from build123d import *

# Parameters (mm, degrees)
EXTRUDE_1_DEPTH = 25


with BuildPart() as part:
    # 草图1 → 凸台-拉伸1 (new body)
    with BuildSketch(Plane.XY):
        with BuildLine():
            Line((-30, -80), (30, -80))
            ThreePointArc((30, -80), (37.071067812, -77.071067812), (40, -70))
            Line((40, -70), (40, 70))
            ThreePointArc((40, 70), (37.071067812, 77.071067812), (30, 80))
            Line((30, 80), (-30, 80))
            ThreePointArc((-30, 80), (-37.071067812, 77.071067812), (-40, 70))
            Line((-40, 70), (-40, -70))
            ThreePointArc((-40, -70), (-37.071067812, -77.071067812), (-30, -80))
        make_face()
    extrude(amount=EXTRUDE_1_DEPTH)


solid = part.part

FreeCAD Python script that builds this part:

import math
import FreeCAD as App
import Part
import Sketcher

V = App.Vector
Q = App.Units.Quantity

doc = App.newDocument("Part")
body = doc.addObject("PartDesign::Body", "Body")

sketch1 = body.newObject("Sketcher::SketchObject", "Sketch")
sketch1.AttachmentSupport = (doc.getObject("XY_Plane"), [""])
sketch1.MapMode = "FlatFace"
sketch1.addGeometry(Part.LineSegment(V(-30, -80, 0), V(30, -80, 0)), False)
sketch1.addGeometry(Part.ArcOfCircle(Part.Circle(V(30, -70, 0), V(0, 0, 1), 10), math.radians(-90), math.radians(0)), False)
sketch1.addGeometry(Part.LineSegment(V(40, -70, 0), V(40, 70, 0)), False)
sketch1.addGeometry(Part.ArcOfCircle(Part.Circle(V(30, 70, 0), V(0, 0, 1), 10), math.radians(0), math.radians(90)), False)
sketch1.addGeometry(Part.LineSegment(V(30, 80, 0), V(-30, 80, 0)), False)
sketch1.addGeometry(Part.ArcOfCircle(Part.Circle(V(-30, 70, 0), V(0, 0, 1), 10), math.radians(90), math.radians(180)), False)
sketch1.addGeometry(Part.LineSegment(V(-40, 70, 0), V(-40, -70, 0)), False)
sketch1.addGeometry(Part.ArcOfCircle(Part.Circle(V(-30, -70, 0), V(0, 0, 1), 10), math.radians(180), math.radians(270)), False)
sketch1.addConstraint(Sketcher.Constraint("Tangent", 0, 2, 1, 1))
sketch1.addConstraint(Sketcher.Constraint("Tangent", 1, 2, 2, 1))
sketch1.addConstraint(Sketcher.Constraint("Tangent", 2, 2, 3, 1))
sketch1.addConstraint(Sketcher.Constraint("Tangent", 3, 2, 4, 1))
sketch1.addConstraint(Sketcher.Constraint("Tangent", 4, 2, 5, 1))
sketch1.addConstraint(Sketcher.Constraint("Tangent", 5, 2, 6, 1))
sketch1.addConstraint(Sketcher.Constraint("Tangent", 6, 2, 7, 1))
sketch1.addConstraint(Sketcher.Constraint("Tangent", 7, 2, 0, 1))
sketch1.addConstraint(Sketcher.Constraint("Horizontal", 0))
sketch1.addConstraint(Sketcher.Constraint("Vertical", 2))
sketch1.addConstraint(Sketcher.Constraint("Horizontal", 4))
sketch1.addConstraint(Sketcher.Constraint("Vertical", 6))
sketch1.addConstraint(Sketcher.Constraint("Equal", 1, 3))
sketch1.addConstraint(Sketcher.Constraint("Equal", 3, 5))
sketch1.addConstraint(Sketcher.Constraint("Equal", 5, 7))
sketch1.addConstraint(Sketcher.Constraint("Symmetric", 1, 3, 5, 3, -1, 1))
sketch1.addConstraint(Sketcher.Constraint("Radius", 1, Q("10 mm")))
sketch1.addConstraint(Sketcher.Constraint("DistanceX", 0, 1, 0, 2, Q("60 mm")))
sketch1.addConstraint(Sketcher.Constraint("DistanceY", 2, 1, 2, 2, Q("140 mm")))
pad1 = body.newObject("PartDesign::Pad", "Pad")
pad1.Profile = sketch1
pad1.Length = 25

doc.recompute()
